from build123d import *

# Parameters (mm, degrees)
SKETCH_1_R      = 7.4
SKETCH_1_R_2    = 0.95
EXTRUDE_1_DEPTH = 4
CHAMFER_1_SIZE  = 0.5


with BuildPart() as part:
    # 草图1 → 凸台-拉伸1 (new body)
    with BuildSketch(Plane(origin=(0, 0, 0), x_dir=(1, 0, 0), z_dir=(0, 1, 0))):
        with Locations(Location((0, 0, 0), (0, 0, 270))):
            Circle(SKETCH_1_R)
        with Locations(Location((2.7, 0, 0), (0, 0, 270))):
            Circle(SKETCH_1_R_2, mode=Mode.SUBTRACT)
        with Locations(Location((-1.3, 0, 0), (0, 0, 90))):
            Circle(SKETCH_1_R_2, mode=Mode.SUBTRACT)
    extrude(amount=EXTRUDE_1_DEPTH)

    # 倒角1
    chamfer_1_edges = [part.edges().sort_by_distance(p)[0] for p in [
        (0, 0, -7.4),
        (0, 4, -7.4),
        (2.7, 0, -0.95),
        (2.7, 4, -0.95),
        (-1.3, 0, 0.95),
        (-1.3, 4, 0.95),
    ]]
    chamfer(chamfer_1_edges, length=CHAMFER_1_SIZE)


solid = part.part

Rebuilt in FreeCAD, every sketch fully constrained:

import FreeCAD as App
import Part
import Sketcher
from FreeCAD import Vector


def edges_at(feature, points):
    """Names of the edges that pass closest to the given points."""
    edges = feature.Shape.Edges
    near = lambda p: min(range(len(edges)), key=lambda i: edges[i].distToShape(Part.Vertex(*p))[0])
    return sorted({f"Edge{near(p) + 1}" for p in points})

doc = App.newDocument("Part")
body = doc.addObject("PartDesign::Body", "Body")

# Sketch on XZ plane
sketch1 = body.newObject("Sketcher::SketchObject", "Sketch")
sketch1.AttachmentSupport = (doc.getObject("XZ_Plane"), [""])
sketch1.MapMode = "FlatFace"
sketch1.addGeometry([
    Part.Circle(Vector(0, 0, 0), Vector(0, 0, 1), 7.4),
    Part.Circle(Vector(-1.3, 0, 0), Vector(0, 0, 1), 0.9),
    Part.Circle(Vector(2.7, 0, 0), Vector(0, 0, 1), 0.9),
], False)
sketch1.addConstraint([
    Sketcher.Constraint("Coincident", 0, 3, -1, 1),
    Sketcher.Constraint("Equal", 1, 2),
    Sketcher.Constraint("PointOnObject", 1, 3, -1),
    Sketcher.Constraint("PointOnObject", 2, 3, -1),
    Sketcher.Constraint("Diameter", 0, 14.8),
    Sketcher.Constraint("Diameter", 1, 1.9),
    Sketcher.Constraint("DistanceX", 1, 3, 2, 3, 4.0),
    Sketcher.Constraint("DistanceX", 1, 3, -1, 1, 1.3),
])
pad1 = body.newObject("PartDesign::Pad", "Pad")
pad1.Profile = sketch1
pad1.Length = 4
pad1.Reversed = True
doc.recompute()

chamfer = body.newObject("PartDesign::Chamfer", "Chamfer")
chamfer.Base = (pad1, edges_at(pad1, [
    (0, 0, -7.4),
    (0, 4, -7.4),
    (2.7, 0, -0.95),
    (2.7, 4, -0.95),
    (-1.3, 0, 0.95),
    (-1.3, 4, 0.95),
]))
chamfer.Size = 0.5

doc.recompute()
